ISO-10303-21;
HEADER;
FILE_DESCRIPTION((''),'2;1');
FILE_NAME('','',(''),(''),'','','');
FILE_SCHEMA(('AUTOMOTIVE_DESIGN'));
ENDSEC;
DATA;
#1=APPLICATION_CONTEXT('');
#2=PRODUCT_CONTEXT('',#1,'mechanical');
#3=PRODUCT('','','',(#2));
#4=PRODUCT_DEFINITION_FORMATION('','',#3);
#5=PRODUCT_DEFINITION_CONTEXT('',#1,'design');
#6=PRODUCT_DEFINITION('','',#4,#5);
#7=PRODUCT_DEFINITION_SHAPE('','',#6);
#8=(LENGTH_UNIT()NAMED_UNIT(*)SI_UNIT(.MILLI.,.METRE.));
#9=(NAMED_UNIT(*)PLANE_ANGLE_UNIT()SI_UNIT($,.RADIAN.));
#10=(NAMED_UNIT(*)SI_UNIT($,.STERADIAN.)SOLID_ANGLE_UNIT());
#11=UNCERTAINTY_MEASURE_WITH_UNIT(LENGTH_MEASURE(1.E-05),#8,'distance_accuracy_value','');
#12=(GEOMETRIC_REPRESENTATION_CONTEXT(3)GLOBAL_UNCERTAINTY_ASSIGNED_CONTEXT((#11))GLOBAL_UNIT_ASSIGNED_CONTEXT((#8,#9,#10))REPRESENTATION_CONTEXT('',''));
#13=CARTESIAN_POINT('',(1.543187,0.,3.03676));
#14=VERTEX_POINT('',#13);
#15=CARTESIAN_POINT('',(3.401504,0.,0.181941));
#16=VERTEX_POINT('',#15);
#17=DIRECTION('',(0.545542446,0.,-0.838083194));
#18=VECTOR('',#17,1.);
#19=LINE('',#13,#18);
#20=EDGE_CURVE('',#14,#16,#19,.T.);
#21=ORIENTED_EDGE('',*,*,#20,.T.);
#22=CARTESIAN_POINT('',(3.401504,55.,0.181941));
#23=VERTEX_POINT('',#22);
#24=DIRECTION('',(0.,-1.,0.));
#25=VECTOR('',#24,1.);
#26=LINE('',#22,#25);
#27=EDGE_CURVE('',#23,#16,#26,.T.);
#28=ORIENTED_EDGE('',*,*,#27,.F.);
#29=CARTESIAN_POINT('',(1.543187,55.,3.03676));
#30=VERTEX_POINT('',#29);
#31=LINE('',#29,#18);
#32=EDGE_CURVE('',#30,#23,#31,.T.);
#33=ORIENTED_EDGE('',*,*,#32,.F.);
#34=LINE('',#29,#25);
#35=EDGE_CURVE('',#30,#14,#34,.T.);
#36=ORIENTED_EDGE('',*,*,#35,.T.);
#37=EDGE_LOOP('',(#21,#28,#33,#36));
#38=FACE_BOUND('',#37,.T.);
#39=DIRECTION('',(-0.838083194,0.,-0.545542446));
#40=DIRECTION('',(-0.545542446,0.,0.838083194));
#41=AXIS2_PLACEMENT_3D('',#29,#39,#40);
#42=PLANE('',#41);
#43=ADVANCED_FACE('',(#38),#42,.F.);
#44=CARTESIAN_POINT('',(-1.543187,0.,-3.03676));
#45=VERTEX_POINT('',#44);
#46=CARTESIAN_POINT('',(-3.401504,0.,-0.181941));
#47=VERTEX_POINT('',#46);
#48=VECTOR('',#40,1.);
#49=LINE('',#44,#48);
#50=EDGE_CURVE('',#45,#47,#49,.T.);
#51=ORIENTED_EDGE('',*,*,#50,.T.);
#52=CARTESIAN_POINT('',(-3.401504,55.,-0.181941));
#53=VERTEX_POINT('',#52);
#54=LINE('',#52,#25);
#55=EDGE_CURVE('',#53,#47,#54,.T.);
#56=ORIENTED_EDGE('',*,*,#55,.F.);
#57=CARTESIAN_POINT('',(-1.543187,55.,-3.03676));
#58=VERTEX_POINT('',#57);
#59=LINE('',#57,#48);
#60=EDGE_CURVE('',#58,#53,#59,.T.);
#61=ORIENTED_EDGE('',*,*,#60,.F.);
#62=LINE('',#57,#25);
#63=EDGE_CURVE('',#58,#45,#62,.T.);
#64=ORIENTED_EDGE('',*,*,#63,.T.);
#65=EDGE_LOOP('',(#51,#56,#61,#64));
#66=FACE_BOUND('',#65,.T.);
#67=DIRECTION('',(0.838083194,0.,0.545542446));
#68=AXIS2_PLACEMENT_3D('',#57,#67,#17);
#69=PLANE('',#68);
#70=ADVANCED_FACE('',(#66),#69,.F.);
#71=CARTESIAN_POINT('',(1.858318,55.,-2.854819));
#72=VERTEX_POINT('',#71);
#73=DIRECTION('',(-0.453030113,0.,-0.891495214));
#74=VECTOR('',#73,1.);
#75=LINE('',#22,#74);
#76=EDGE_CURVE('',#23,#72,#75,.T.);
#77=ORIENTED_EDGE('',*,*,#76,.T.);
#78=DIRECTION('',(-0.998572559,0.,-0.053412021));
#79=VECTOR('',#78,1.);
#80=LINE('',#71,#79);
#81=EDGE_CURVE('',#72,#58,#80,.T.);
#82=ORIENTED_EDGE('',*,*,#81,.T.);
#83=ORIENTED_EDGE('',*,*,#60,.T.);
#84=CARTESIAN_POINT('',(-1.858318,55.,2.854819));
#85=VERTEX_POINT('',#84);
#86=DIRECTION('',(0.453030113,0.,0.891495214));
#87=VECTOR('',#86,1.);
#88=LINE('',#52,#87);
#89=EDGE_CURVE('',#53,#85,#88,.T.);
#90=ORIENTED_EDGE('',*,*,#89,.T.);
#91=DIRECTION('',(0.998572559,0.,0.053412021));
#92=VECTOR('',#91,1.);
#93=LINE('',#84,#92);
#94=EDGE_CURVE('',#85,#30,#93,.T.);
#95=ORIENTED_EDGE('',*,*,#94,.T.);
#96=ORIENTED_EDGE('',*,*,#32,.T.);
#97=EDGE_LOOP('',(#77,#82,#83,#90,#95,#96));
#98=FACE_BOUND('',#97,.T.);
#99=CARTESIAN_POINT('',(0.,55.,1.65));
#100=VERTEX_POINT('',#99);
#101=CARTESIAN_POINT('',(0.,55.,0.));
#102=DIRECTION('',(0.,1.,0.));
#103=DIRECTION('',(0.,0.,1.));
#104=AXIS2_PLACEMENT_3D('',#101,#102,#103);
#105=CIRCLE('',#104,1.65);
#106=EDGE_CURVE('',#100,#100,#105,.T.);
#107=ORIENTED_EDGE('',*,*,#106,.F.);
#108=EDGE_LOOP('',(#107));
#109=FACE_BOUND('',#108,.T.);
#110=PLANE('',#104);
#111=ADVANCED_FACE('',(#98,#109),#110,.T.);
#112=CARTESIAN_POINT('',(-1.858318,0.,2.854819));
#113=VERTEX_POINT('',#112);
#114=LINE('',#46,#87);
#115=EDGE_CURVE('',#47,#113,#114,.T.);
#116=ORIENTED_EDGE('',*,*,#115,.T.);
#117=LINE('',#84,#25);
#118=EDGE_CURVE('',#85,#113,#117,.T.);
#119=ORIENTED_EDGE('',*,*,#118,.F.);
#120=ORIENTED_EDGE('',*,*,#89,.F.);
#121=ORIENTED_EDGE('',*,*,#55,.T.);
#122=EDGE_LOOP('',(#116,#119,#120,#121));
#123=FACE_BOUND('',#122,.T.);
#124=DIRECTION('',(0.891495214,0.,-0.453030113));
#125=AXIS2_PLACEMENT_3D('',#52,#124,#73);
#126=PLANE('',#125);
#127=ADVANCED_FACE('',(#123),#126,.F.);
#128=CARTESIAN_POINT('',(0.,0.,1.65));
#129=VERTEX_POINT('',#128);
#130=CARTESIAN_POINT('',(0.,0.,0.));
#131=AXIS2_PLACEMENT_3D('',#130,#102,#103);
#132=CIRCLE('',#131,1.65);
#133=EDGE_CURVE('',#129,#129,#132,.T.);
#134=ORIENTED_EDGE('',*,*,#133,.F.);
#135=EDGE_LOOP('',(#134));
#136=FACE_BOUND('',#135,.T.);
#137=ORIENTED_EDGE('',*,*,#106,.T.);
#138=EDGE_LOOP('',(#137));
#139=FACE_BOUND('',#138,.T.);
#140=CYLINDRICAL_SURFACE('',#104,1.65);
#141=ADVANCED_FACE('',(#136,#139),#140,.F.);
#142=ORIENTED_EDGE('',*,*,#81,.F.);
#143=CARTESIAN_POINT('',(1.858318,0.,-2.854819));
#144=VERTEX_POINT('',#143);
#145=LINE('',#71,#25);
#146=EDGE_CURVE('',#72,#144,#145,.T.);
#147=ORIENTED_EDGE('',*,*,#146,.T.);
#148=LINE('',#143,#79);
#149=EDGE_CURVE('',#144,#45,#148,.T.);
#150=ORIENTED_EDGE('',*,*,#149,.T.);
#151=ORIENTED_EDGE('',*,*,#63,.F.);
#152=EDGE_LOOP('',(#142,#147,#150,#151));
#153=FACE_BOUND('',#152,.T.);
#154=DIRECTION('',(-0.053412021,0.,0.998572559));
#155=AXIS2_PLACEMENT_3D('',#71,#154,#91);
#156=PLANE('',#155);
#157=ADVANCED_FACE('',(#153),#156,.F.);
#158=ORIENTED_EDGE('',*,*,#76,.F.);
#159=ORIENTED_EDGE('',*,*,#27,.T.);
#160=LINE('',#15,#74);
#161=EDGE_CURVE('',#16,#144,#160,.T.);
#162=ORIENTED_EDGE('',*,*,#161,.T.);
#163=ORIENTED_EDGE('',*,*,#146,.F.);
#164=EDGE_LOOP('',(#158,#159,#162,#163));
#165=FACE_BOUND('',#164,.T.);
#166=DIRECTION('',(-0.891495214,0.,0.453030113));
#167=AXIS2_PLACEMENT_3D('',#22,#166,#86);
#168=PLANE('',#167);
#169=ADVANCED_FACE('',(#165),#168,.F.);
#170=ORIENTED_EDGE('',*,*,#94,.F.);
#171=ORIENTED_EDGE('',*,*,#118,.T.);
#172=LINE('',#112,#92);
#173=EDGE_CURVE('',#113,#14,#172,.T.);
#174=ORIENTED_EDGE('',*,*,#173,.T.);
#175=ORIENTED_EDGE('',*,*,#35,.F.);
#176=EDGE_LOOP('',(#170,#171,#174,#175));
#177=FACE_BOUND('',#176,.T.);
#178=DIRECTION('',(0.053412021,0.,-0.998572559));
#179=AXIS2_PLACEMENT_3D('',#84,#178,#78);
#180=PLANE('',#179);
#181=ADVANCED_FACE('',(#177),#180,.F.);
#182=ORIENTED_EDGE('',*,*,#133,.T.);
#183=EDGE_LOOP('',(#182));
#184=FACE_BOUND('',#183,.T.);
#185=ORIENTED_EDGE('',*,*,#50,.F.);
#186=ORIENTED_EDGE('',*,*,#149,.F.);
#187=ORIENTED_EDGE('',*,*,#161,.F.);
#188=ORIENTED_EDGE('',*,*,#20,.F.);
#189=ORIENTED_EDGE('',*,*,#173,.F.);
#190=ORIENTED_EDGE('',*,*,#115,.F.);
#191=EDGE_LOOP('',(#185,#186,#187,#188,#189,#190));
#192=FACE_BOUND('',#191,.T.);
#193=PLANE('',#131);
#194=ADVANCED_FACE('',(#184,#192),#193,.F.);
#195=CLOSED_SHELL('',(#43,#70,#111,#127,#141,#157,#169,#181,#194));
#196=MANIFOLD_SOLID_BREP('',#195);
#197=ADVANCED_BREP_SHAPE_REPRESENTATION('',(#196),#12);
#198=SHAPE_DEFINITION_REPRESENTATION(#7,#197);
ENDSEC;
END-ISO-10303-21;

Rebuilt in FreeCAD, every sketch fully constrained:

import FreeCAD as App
import Part
import Sketcher

V = App.Vector
Q = App.Units.Quantity


def add_polygon(sketch, points):
    """Adds a closed chain of lines whose ends are joined by coincident constraints."""
    first, n = sketch.GeometryCount, len(points)
    for a, b in zip(points, points[1:] + points[:1]):
        sketch.addGeometry(Part.LineSegment(App.Vector(*a, 0), App.Vector(*b, 0)), False)
    for i in range(n):
        sketch.addConstraint(Sketcher.Constraint("Coincident", first + i, 2, first + (i + 1) % n, 1))

doc = App.newDocument("Part")
body = doc.addObject("PartDesign::Body", "Body")

# Sketch on XZ plane
sketch1 = doc.addObject("Sketcher::SketchObject", "Sketch")
body.addObject(sketch1)
sketch1.AttachmentSupport = (doc.XZ_Plane, [""])
sketch1.MapMode = "FlatFace"
add_polygon(sketch1, [(3.4, 0.2), (1.9, -2.9), (-1.5, -3), (-3.4, -0.2), (-1.9, 2.9), (1.5, 3)])  # lines 0-5
sketch1.addConstraint([
    Sketcher.Constraint("Symmetric", 0, 2, 3, 2, -1, 1),
    Sketcher.Constraint("Symmetric", 1, 2, 4, 2, -1, 1),
    Sketcher.Constraint("Symmetric", 2, 2, 5, 2, -1, 1),
    Sketcher.Constraint("Equal", 0, 1),
    Sketcher.Constraint("Equal", 1, 2),
    Sketcher.Constraint("DistanceY", 2, 2, 4, 2, Q("3.2187 mm")),
    Sketcher.Constraint("DistanceY", 0, 2, -1, 1, Q("2.854819 mm")),
    Sketcher.Constraint("DistanceY", 1, 2, -1, 1, Q("3.03676 mm")),
    Sketcher.Constraint("DistanceX", 2, 2, 0, 2, Q("5.259822 mm")),
])
pad1 = doc.addObject("PartDesign::Pad", "Pad")
body.addObject(pad1)
pad1.Profile = sketch1
pad1.Length = 55
pad1.Reversed = True

# Sketch on XZ plane
sketch2 = doc.addObject("Sketcher::SketchObject", "Sketch001")
body.addObject(sketch2)
sketch2.AttachmentSupport = (doc.XZ_Plane, [""])
sketch2.MapMode = "FlatFace"
sketch2.AttachmentOffset = App.Placement(V(0, 0, -55), App.Rotation())
sketch2.addGeometry(Part.Circle(V(0, 0, 0), V(0, 0, 1), 1.6), False)
sketch2.addConstraint([
    Sketcher.Constraint("Coincident", 0, 3, -1, 1),
    Sketcher.Constraint("Diameter", 0, Q("3.3 mm")),
])
doc.recompute()
hole = doc.addObject("PartDesign::Hole", "Hole")
body.addObject(hole)
hole.Profile = sketch2
hole.ThreadType = "None"
hole.Diameter = 3.3
hole.DepthType = "ThroughAll"
hole.Reversed = True

doc.recompute()
